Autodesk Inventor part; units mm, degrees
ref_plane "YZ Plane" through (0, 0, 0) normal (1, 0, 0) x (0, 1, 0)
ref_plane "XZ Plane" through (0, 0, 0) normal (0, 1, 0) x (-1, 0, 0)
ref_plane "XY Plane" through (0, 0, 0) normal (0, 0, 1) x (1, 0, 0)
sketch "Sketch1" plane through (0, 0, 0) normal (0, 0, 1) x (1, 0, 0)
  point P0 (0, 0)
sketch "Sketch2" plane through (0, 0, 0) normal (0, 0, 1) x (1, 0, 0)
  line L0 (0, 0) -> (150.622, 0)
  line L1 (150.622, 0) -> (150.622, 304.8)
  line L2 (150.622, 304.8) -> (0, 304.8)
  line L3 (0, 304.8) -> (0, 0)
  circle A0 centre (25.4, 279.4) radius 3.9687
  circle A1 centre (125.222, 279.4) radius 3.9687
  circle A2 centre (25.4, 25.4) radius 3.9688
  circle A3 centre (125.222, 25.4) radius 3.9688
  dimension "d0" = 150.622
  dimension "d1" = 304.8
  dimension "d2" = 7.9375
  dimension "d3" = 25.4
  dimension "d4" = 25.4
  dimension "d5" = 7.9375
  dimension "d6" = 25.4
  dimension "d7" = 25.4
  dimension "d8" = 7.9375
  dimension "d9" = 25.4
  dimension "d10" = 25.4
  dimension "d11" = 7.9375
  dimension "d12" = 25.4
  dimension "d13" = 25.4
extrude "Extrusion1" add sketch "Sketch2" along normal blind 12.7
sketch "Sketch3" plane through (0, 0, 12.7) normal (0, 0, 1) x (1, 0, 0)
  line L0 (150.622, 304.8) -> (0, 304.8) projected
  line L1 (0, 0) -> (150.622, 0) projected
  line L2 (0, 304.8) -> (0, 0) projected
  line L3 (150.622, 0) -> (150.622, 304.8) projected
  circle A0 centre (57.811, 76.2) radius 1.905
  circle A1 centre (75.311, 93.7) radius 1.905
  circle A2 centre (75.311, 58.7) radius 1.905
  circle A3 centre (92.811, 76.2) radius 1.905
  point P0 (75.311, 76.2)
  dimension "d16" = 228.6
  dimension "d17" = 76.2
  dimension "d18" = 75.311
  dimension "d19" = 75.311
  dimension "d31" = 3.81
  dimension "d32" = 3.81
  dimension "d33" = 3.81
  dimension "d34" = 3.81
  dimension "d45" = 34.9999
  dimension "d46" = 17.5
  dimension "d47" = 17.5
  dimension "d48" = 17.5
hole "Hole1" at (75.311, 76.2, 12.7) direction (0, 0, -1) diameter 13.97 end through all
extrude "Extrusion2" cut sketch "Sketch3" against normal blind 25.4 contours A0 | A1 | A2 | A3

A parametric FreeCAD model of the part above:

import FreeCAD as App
import Part
import Sketcher
Q = App.Units.Quantity


def add_polygon(sketch, points):
    """Adds a closed chain of lines whose ends are joined by coincident constraints."""
    first, n = sketch.GeometryCount, len(points)
    for a, b in zip(points, points[1:] + points[:1]):
        sketch.addGeometry(Part.LineSegment(App.Vector(*a, 0), App.Vector(*b, 0)), False)
    for i in range(n):
        sketch.addConstraint(Sketcher.Constraint("Coincident", first + i, 2, first + (i + 1) % n, 1))

doc = App.newDocument("Part")
body = doc.addObject("PartDesign::Body", "Body")

# Sketch on XY plane
sketch1 = doc.addObject("Sketcher::SketchObject", "Sketch")
body.addObject(sketch1)
sketch1.AttachmentSupport = (doc.XY_Plane, [""])
sketch1.MapMode = "FlatFace"
add_polygon(sketch1, [(0, 304.8), (0, 0), (150.622, 0), (150.622, 304.8)])  # lines 0-3
sketch1.addGeometry(Part.Circle(App.Vector(25.4, 25.4, 0), App.Vector(0, 0, 1), 3.9688), False)  # 4
sketch1.addGeometry(Part.Circle(App.Vector(125.222, 25.4, 0), App.Vector(0, 0, 1), 3.9688), False)  # 5
sketch1.addGeometry(Part.Circle(App.Vector(25.4, 279.4, 0), App.Vector(0, 0, 1), 3.9687), False)  # 6
sketch1.addGeometry(Part.Circle(App.Vector(125.222, 279.4, 0), App.Vector(0, 0, 1), 3.9687), False)  # 7
sketch1.addConstraint([
    Sketcher.Constraint("Vertical", 0),
    Sketcher.Constraint("Horizontal", 1),
    Sketcher.Constraint("Vertical", 2),
    Sketcher.Constraint("Horizontal", 3),
    Sketcher.Constraint("Coincident", 0, 2, -1, 1),
    Sketcher.Constraint("Equal", 4, 5),
    Sketcher.Constraint("Equal", 5, 6),
    Sketcher.Constraint("Equal", 6, 7),
    Sketcher.Constraint("Horizontal", 4, 3, 5, 3),
    Sketcher.Constraint("Horizontal", 6, 3, 7, 3),
    Sketcher.Constraint("Vertical", 4, 3, 6, 3),
    Sketcher.Constraint("Vertical", 5, 3, 7, 3),
    Sketcher.Constraint("DistanceY", 0, 2, 0, 1, Q("12 in")),
    Sketcher.Constraint("Diameter", 4, Q("0.3125 in")),
    Sketcher.Constraint("DistanceX", -1, 1, 4, 3, Q("1 in")),
    Sketcher.Constraint("DistanceY", -1, 1, 4, 3, Q("1 in")),
    Sketcher.Constraint("DistanceX", 5, 3, 1, 2, Q("1 in")),
    Sketcher.Constraint("DistanceY", 7, 3, 2, 2, Q("1 in")),
    Sketcher.Constraint("DistanceX", 1, 1, 1, 2, Q("5.93 in")),
])
pad1 = doc.addObject("PartDesign::Pad", "Pad")
body.addObject(pad1)
pad1.Profile = sketch1
pad1.Length = Q("0.5 in")

# Sketch on XY plane
sketch2 = doc.addObject("Sketcher::SketchObject", "Sketch001")
body.addObject(sketch2)
sketch2.AttachmentSupport = (doc.XY_Plane, [""])
sketch2.MapMode = "FlatFace"
sketch2.AttachmentOffset = App.Placement(App.Vector(0, 0, 0.5 * 25.4), App.Rotation())
sketch2.addGeometry(Part.Circle(App.Vector(75.311, 76.2, 0), App.Vector(0, 0, 1), 6.985), False)
sketch2.addConstraint([
    Sketcher.Constraint("Diameter", 0, Q("0.55 in")),
    Sketcher.Constraint("DistanceY", -1, 1, 0, 3, Q("3 in")),
    Sketcher.Constraint("DistanceX", -1, 1, 0, 3, Q("2.965 in")),
])
doc.recompute()
hole = doc.addObject("PartDesign::Hole", "Hole")
body.addObject(hole)
hole.Profile = sketch2
hole.ThreadType = "None"
hole.Diameter = Q("0.55 in")
hole.DepthType = "ThroughAll"

# Sketch on XY plane
sketch3 = doc.addObject("Sketcher::SketchObject", "Sketch002")
body.addObject(sketch3)
sketch3.AttachmentSupport = (doc.XY_Plane, [""])
sketch3.MapMode = "FlatFace"
sketch3.AttachmentOffset = App.Placement(App.Vector(0, 0, 0.5 * 25.4), App.Rotation())
sketch3.addGeometry([
    Part.Circle(App.Vector(57.811, 76.2, 0), App.Vector(0, 0, 1), 1.905),
    Part.Circle(App.Vector(75.311, 93.7, 0), App.Vector(0, 0, 1), 1.905),
    Part.Circle(App.Vector(75.311, 58.7, 0), App.Vector(0, 0, 1), 1.905),
    Part.Circle(App.Vector(92.811, 76.2, 0), App.Vector(0, 0, 1), 1.905),
], False)
sketch3.addConstraint([
    Sketcher.Constraint("Equal", 0, 1),
    Sketcher.Constraint("Equal", 1, 2),
    Sketcher.Constraint("Equal", 2, 3),
    Sketcher.Constraint("Horizontal", 0, 3, 3, 3),
    Sketcher.Constraint("Vertical", 1, 3, 2, 3),
    Sketcher.Constraint("Diameter", 0, Q("0.15 in")),
    Sketcher.Constraint("DistanceY", -1, 1, 0, 3, Q("3 in")),
    Sketcher.Constraint("DistanceX", -1, 1, 1, 3, Q("2.965 in")),
    Sketcher.Constraint("DistanceX", 0, 3, 1, 3, Q("17.5 mm")),
    Sketcher.Constraint("DistanceY", 0, 3, 1, 3, Q("17.5 mm")),
    Sketcher.Constraint("DistanceY", 2, 3, 0, 3, Q("17.5 mm")),
    Sketcher.Constraint("DistanceX", 1, 3, 3, 3, Q("17.5 mm")),
])
pocket1 = doc.addObject("PartDesign::Pocket", "Pocket")
body.addObject(pocket1)
pocket1.Profile = sketch3
pocket1.Length = Q("1 in")

doc.recompute()
